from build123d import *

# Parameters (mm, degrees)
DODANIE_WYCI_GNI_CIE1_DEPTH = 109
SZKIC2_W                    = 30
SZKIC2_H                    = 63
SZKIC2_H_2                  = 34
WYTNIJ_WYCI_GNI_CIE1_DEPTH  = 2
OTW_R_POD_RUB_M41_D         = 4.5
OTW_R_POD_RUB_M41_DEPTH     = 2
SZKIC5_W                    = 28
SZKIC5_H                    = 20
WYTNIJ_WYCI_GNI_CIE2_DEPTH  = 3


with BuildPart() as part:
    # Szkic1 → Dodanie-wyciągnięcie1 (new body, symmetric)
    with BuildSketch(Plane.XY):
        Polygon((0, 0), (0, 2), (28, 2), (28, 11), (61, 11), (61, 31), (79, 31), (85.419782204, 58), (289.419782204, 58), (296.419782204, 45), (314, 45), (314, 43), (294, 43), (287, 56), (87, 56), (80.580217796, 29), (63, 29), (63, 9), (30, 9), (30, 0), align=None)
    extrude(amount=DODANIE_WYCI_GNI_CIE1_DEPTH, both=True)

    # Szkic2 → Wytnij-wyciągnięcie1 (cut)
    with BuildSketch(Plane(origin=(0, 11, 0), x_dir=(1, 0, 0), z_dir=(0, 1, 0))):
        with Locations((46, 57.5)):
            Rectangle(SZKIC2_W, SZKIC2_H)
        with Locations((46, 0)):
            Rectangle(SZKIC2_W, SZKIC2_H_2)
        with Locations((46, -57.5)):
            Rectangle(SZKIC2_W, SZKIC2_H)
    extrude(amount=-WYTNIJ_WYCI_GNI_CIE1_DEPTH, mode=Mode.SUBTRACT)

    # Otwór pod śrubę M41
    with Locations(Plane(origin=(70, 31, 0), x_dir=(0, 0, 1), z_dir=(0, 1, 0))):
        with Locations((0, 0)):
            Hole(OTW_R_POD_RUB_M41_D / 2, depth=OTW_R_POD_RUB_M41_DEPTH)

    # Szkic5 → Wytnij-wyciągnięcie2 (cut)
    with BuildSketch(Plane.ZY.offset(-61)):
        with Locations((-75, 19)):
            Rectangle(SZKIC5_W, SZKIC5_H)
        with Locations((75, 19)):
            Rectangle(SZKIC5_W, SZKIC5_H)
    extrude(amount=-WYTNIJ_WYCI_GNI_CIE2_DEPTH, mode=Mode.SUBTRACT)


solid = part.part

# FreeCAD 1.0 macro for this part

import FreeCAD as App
import Part
import Sketcher
Q = App.Units.Quantity

doc = App.newDocument("Part")
body = doc.addObject("PartDesign::Body", "Body")

# Sketch on XY plane
sketch1 = doc.addObject("Sketcher::SketchObject", "Sketch")
body.addObject(sketch1)
sketch1.AttachmentSupport = (doc.XY_Plane, [""])
sketch1.MapMode = "FlatFace"
sketch1.addGeometry([
    Part.LineSegment(App.Vector(0, 2, 0), App.Vector(0, 0, 0)),  # 0
    Part.LineSegment(App.Vector(0, 0, 0), App.Vector(30, 0, 0)),  # 1
    Part.LineSegment(App.Vector(30, 0, 0), App.Vector(30, 9, 0)),  # 2
    Part.LineSegment(App.Vector(30, 9, 0), App.Vector(63, 9, 0)),  # 3
    Part.LineSegment(App.Vector(63, 9, 0), App.Vector(63, 29, 0)),  # 4
    Part.LineSegment(App.Vector(63, 29, 0), App.Vector(80.6, 29, 0)),  # 5
    Part.LineSegment(App.Vector(80.6, 29, 0), App.Vector(87, 56, 0)),  # 6
    Part.LineSegment(App.Vector(87, 56, 0), App.Vector(287, 56, 0)),  # 7
    Part.LineSegment(App.Vector(287, 56, 0), App.Vector(294, 43, 0)),  # 8
    Part.LineSegment(App.Vector(294, 43, 0), App.Vector(314, 43, 0)),  # 9
    Part.LineSegment(App.Vector(314, 43, 0), App.Vector(314, 45, 0)),  # 10
    Part.LineSegment(App.Vector(314, 45, 0), App.Vector(296.4, 45, 0)),  # 11
    Part.LineSegment(App.Vector(296.4, 45, 0), App.Vector(289.4, 58, 0)),  # 12
    Part.LineSegment(App.Vector(289.4, 58, 0), App.Vector(85.4, 58, 0)),  # 13
    Part.LineSegment(App.Vector(85.4, 58, 0), App.Vector(79, 31, 0)),  # 14
    Part.LineSegment(App.Vector(79, 31, 0), App.Vector(61, 31, 0)),  # 15
    Part.LineSegment(App.Vector(61, 31, 0), App.Vector(61, 11, 0)),  # 16
    Part.LineSegment(App.Vector(61, 11, 0), App.Vector(28, 11, 0)),  # 17
    Part.LineSegment(App.Vector(28, 11, 0), App.Vector(28, 2, 0)),  # 18
    Part.LineSegment(App.Vector(28, 2, 0), App.Vector(0, 2, 0)),  # 19
], False)
sketch1.addConstraint([
    Sketcher.Constraint("Coincident", 0, 2, 1, 1),
    Sketcher.Constraint("Coincident", 1, 2, 2, 1),
    Sketcher.Constraint("Coincident", 2, 2, 3, 1),
    Sketcher.Constraint("Coincident", 3, 2, 4, 1),
    Sketcher.Constraint("Coincident", 4, 2, 5, 1),
    Sketcher.Constraint("Coincident", 5, 2, 6, 1),
    Sketcher.Constraint("Coincident", 6, 2, 7, 1),
    Sketcher.Constraint("Coincident", 7, 2, 8, 1),
    Sketcher.Constraint("Coincident", 8, 2, 9, 1),
    Sketcher.Constraint("Coincident", 9, 2, 10, 1),
    Sketcher.Constraint("Coincident", 10, 2, 11, 1),
    Sketcher.Constraint("Coincident", 11, 2, 12, 1),
    Sketcher.Constraint("Coincident", 12, 2, 13, 1),
    Sketcher.Constraint("Coincident", 13, 2, 14, 1),
    Sketcher.Constraint("Coincident", 14, 2, 15, 1),
    Sketcher.Constraint("Coincident", 15, 2, 16, 1),
    Sketcher.Constraint("Coincident", 16, 2, 17, 1),
    Sketcher.Constraint("Coincident", 17, 2, 18, 1),
    Sketcher.Constraint("Coincident", 18, 2, 19, 1),
    Sketcher.Constraint("Coincident", 19, 2, 0, 1),
    Sketcher.Constraint("Vertical", 0),
    Sketcher.Constraint("Horizontal", 1),
    Sketcher.Constraint("Vertical", 2),
    Sketcher.Constraint("Horizontal", 3),
    Sketcher.Constraint("Vertical", 4),
    Sketcher.Constraint("Horizontal", 5),
    Sketcher.Constraint("Horizontal", 7),
    Sketcher.Constraint("Horizontal", 9),
    Sketcher.Constraint("Vertical", 10),
    Sketcher.Constraint("Horizontal", 11),
    Sketcher.Constraint("Horizontal", 13),
    Sketcher.Constraint("Horizontal", 15),
    Sketcher.Constraint("Vertical", 16),
    Sketcher.Constraint("Horizontal", 17),
    Sketcher.Constraint("Vertical", 18),
    Sketcher.Constraint("Horizontal", 19),
    Sketcher.Constraint("Coincident", 0, 2, -1, 1),
    Sketcher.Constraint("Parallel", 8, 12),
    Sketcher.Constraint("Parallel", 6, 14),
    Sketcher.Constraint("Equal", 5, 11),
    Sketcher.Constraint("Equal", 3, 17),
    Sketcher.Constraint("Equal", 9, 4),
    Sketcher.Constraint("Equal", 0, 10),
    Sketcher.Constraint("Equal", 4, 16),
    Sketcher.Constraint("Equal", 2, 18),
    Sketcher.Constraint("Equal", 8, 12),
    Sketcher.Constraint("DistanceX", 1, 1, 1, 2, Q("30 mm")),
    Sketcher.Constraint("DistanceX", 3, 1, 3, 2, Q("33 mm")),
    Sketcher.Constraint("DistanceX", 7, 1, 7, 2, Q("200 mm")),
    Sketcher.Constraint("DistanceX", 9, 1, 9, 2, Q("20 mm")),
    Sketcher.Constraint("DistanceX", 13, 2, 13, 1, Q("204 mm")),
    Sketcher.Constraint("DistanceX", 15, 2, 15, 1, Q("18 mm")),
    Sketcher.Constraint("DistanceY", 0, 2, 0, 1, Q("2 mm")),
    Sketcher.Constraint("DistanceY", 2, 1, 2, 2, Q("9 mm")),
    Sketcher.Constraint("DistanceX", -1, 1, 6, 2, Q("87 mm")),
    Sketcher.Constraint("DistanceY", -1, 1, 6, 2, Q("56 mm")),
    Sketcher.Constraint("DistanceX", -1, 1, 8, 2, Q("294 mm")),
    Sketcher.Constraint("DistanceY", -1, 1, 8, 2, Q("43 mm")),
    Sketcher.Constraint("DistanceX", 5, 1, 5, 2, Q("17.580218 mm")),
])
pad1 = doc.addObject("PartDesign::Pad", "Pad")
body.addObject(pad1)
pad1.Profile = sketch1
pad1.Length = 218
pad1.Midplane = True

# Sketch on XZ plane
sketch2 = doc.addObject("Sketcher::SketchObject", "Sketch001")
body.addObject(sketch2)
sketch2.AttachmentSupport = (doc.XZ_Plane, [""])
sketch2.MapMode = "FlatFace"
sketch2.AttachmentOffset = App.Placement(App.Vector(0, 0, -11), App.Rotation())
sketch2.addGeometry([
    Part.LineSegment(App.Vector(31, -89, 0), App.Vector(31, -26, 0)),  # 0
    Part.LineSegment(App.Vector(31, -26, 0), App.Vector(61, -26, 0)),  # 1
    Part.LineSegment(App.Vector(61, -26, 0), App.Vector(61, -89, 0)),  # 2
    Part.LineSegment(App.Vector(61, -89, 0), App.Vector(31, -89, 0)),  # 3
    Part.LineSegment(App.Vector(31, -17, 0), App.Vector(31, 17, 0)),  # 4
    Part.LineSegment(App.Vector(31, 17, 0), App.Vector(61, 17, 0)),  # 5
    Part.LineSegment(App.Vector(61, 17, 0), App.Vector(61, -17, 0)),  # 6
    Part.LineSegment(App.Vector(61, -17, 0), App.Vector(31, -17, 0)),  # 7
    Part.LineSegment(App.Vector(31, 26, 0), App.Vector(31, 89, 0)),  # 8
    Part.LineSegment(App.Vector(31, 89, 0), App.Vector(61, 89, 0)),  # 9
    Part.LineSegment(App.Vector(61, 89, 0), App.Vector(61, 26, 0)),  # 10
    Part.LineSegment(App.Vector(61, 26, 0), App.Vector(31, 26, 0)),  # 11
], False)
sketch2.addConstraint([
    Sketcher.Constraint("Coincident", 0, 2, 1, 1),
    Sketcher.Constraint("Coincident", 1, 2, 2, 1),
    Sketcher.Constraint("Coincident", 2, 2, 3, 1),
    Sketcher.Constraint("Coincident", 3, 2, 0, 1),
    Sketcher.Constraint("Coincident", 4, 2, 5, 1),
    Sketcher.Constraint("Coincident", 5, 2, 6, 1),
    Sketcher.Constraint("Coincident", 6, 2, 7, 1),
    Sketcher.Constraint("Coincident", 7, 2, 4, 1),
    Sketcher.Constraint("Coincident", 8, 2, 9, 1),
    Sketcher.Constraint("Coincident", 9, 2, 10, 1),
    Sketcher.Constraint("Coincident", 10, 2, 11, 1),
    Sketcher.Constraint("Coincident", 11, 2, 8, 1),
    Sketcher.Constraint("Vertical", 0),
    Sketcher.Constraint("Horizontal", 1),
    Sketcher.Constraint("Vertical", 2),
    Sketcher.Constraint("Horizontal", 3),
    Sketcher.Constraint("Vertical", 4),
    Sketcher.Constraint("Horizontal", 5),
    Sketcher.Constraint("Vertical", 6),
    Sketcher.Constraint("Horizontal", 7),
    Sketcher.Constraint("Vertical", 8),
    Sketcher.Constraint("Horizontal", 9),
    Sketcher.Constraint("Vertical", 10),
    Sketcher.Constraint("Horizontal", 11),
    Sketcher.Constraint("Symmetric", 3, 2, 8, 2, -1),
    Sketcher.Constraint("Symmetric", 1, 2, 10, 2, -1),
    Sketcher.Constraint("Vertical", 3, 2, 4, 2),
    Sketcher.Constraint("Vertical", 2, 2, 5, 2),
    Sketcher.Constraint("DistanceX", 1, 1, 1, 2, Q("30 mm")),
    Sketcher.Constraint("DistanceY", 0, 1, 0, 2, Q("63 mm")),
    Sketcher.Constraint("DistanceY", 4, 1, 4, 2, Q("34 mm")),
    Sketcher.Constraint("DistanceX", -1, 1, 0, 2, Q("31 mm")),
    Sketcher.Constraint("DistanceY", 0, 2, -1, 1, Q("26 mm")),
    Sketcher.Constraint("DistanceY", -1, 1, 4, 2, Q("17 mm")),
])
pocket1 = doc.addObject("PartDesign::Pocket", "Pocket")
body.addObject(pocket1)
pocket1.Profile = sketch2
pocket1.Length = 2
pocket1.Reversed = True

# Sketch on XZ plane
sketch3 = doc.addObject("Sketcher::SketchObject", "Sketch002")
body.addObject(sketch3)
sketch3.AttachmentSupport = (doc.XZ_Plane, [""])
sketch3.MapMode = "FlatFace"
sketch3.AttachmentOffset = App.Placement(App.Vector(0, 0, -31), App.Rotation())
sketch3.addGeometry(Part.Circle(App.Vector(70, 0, 0), App.Vector(0, 0, 1), 2.2), False)
sketch3.addConstraint([
    Sketcher.Constraint("PointOnObject", 0, 3, -1),
    Sketcher.Constraint("Diameter", 0, Q("4.5 mm")),
    Sketcher.Constraint("DistanceX", -1, 1, 0, 3, Q("70 mm")),
])
doc.recompute()
hole = doc.addObject("PartDesign::Hole", "Hole")
body.addObject(hole)
hole.Profile = sketch3
hole.ThreadType = "None"
hole.Diameter = 4.5
hole.DepthType = "Dimension"
hole.Depth = 2
hole.DrillPoint = "Flat"
hole.Reversed = True

# Sketch on YZ plane
sketch4 = doc.addObject("Sketcher::SketchObject", "Sketch003")
body.addObject(sketch4)
sketch4.AttachmentSupport = (doc.YZ_Plane, [""])
sketch4.MapMode = "FlatFace"
sketch4.AttachmentOffset = App.Placement(App.Vector(0, 0, 61), App.Rotation())
sketch4.addGeometry([
    Part.LineSegment(App.Vector(29, -89, 0), App.Vector(9, -89, 0)),  # 0
    Part.LineSegment(App.Vector(9, -89, 0), App.Vector(9, -61, 0)),  # 1
    Part.LineSegment(App.Vector(9, -61, 0), App.Vector(29, -61, 0)),  # 2
    Part.LineSegment(App.Vector(29, -61, 0), App.Vector(29, -89, 0)),  # 3
    Part.LineSegment(App.Vector(29, 61, 0), App.Vector(9, 61, 0)),  # 4
    Part.LineSegment(App.Vector(9, 61, 0), App.Vector(9, 89, 0)),  # 5
    Part.LineSegment(App.Vector(9, 89, 0), App.Vector(29, 89, 0)),  # 6
    Part.LineSegment(App.Vector(29, 89, 0), App.Vector(29, 61, 0)),  # 7
], False)
sketch4.addConstraint([
    Sketcher.Constraint("Coincident", 0, 2, 1, 1),
    Sketcher.Constraint("Coincident", 1, 2, 2, 1),
    Sketcher.Constraint("Coincident", 2, 2, 3, 1),
    Sketcher.Constraint("Coincident", 3, 2, 0, 1),
    Sketcher.Constraint("Coincident", 4, 2, 5, 1),
    Sketcher.Constraint("Coincident", 5, 2, 6, 1),
    Sketcher.Constraint("Coincident", 6, 2, 7, 1),
    Sketcher.Constraint("Coincident", 7, 2, 4, 1),
    Sketcher.Constraint("Horizontal", 0),
    Sketcher.Constraint("Vertical", 1),
    Sketcher.Constraint("Horizontal", 2),
    Sketcher.Constraint("Vertical", 3),
    Sketcher.Constraint("Horizontal", 4),
    Sketcher.Constraint("Vertical", 5),
    Sketcher.Constraint("Horizontal", 6),
    Sketcher.Constraint("Vertical", 7),
    Sketcher.Constraint("Symmetric", 1, 2, 4, 2, -1),
    Sketcher.Constraint("Symmetric", 3, 2, 6, 2, -1),
    Sketcher.Constraint("DistanceX", 0, 2, 0, 1, Q("20 mm")),
    Sketcher.Constraint("DistanceY", 1, 1, 1, 2, Q("28 mm")),
    Sketcher.Constraint("DistanceX", -1, 1, 0, 2, Q("9 mm")),
    Sketcher.Constraint("DistanceY", 0, 2, -1, 1, Q("89 mm")),
])
pocket2 = doc.addObject("PartDesign::Pocket", "Pocket001")
body.addObject(pocket2)
pocket2.Profile = sketch4
pocket2.Length = 3
pocket2.Reversed = True

doc.recompute()
